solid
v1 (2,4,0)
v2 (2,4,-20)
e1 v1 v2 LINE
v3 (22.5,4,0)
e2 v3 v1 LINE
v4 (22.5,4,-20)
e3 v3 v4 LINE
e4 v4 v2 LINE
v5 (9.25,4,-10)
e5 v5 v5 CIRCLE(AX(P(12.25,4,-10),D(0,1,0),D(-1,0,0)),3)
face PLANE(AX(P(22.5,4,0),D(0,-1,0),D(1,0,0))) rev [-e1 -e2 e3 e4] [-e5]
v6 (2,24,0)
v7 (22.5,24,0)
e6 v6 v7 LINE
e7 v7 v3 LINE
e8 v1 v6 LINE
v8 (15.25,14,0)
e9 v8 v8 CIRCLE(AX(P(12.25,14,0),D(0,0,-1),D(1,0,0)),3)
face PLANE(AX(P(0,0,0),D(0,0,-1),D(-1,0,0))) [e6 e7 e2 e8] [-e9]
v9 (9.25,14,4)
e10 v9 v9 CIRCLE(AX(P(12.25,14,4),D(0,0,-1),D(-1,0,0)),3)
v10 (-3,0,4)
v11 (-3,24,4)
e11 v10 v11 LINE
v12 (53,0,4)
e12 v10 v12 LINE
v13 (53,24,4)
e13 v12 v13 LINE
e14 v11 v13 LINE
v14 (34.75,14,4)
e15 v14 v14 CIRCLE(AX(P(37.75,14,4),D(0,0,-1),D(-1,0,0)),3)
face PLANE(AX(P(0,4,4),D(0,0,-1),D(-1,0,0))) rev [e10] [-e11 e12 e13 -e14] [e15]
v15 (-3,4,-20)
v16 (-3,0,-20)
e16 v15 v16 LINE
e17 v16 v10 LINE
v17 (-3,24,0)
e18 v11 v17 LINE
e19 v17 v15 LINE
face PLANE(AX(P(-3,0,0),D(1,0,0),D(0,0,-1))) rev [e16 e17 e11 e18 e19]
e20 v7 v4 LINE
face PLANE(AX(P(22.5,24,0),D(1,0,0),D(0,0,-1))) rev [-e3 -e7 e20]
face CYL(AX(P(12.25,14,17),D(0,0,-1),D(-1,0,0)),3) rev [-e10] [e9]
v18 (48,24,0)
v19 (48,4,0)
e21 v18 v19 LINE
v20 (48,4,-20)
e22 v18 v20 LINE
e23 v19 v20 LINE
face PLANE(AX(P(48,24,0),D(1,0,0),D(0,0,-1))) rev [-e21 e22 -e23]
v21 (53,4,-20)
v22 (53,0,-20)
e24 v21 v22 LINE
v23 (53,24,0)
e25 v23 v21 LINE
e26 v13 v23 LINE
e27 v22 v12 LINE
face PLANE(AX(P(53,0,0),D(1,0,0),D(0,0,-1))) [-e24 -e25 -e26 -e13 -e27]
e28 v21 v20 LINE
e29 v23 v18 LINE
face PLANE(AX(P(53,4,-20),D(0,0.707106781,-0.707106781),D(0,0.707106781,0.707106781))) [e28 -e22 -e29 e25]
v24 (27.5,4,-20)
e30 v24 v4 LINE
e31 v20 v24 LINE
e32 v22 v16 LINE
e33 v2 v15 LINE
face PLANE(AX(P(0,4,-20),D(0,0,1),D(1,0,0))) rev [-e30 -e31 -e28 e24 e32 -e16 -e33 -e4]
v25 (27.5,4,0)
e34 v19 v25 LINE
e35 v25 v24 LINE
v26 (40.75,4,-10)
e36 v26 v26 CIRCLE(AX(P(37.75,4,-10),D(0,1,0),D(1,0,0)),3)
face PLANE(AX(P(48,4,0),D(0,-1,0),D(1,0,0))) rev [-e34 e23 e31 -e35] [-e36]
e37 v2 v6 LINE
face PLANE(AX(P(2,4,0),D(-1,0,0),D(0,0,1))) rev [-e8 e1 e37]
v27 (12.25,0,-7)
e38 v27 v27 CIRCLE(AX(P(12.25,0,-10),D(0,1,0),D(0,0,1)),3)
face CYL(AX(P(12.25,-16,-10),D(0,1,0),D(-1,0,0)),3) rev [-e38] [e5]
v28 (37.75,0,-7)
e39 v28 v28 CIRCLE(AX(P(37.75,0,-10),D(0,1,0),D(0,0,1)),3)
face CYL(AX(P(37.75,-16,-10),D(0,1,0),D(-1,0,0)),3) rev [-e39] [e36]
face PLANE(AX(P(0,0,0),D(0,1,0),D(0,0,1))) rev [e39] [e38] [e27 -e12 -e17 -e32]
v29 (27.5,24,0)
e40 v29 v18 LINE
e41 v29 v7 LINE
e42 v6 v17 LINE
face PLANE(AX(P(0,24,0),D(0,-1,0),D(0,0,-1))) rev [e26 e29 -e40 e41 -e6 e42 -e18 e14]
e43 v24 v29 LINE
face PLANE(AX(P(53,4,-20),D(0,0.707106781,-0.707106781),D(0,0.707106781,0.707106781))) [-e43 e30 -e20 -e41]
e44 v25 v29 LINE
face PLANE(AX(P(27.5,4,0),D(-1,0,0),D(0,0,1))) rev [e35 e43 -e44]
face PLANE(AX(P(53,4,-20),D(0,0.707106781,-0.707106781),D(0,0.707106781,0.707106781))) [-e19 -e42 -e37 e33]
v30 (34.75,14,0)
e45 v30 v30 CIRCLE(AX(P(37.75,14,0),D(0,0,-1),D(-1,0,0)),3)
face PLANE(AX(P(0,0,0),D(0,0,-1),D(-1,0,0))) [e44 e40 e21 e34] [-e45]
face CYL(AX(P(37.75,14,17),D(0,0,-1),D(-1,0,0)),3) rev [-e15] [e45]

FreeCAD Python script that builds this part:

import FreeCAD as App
import Part
import Sketcher

V = App.Vector
Q = App.Units.Quantity


def add_polygon(sketch, points):
    """Adds a closed chain of lines whose ends are joined by coincident constraints."""
    first, n = sketch.GeometryCount, len(points)
    for a, b in zip(points, points[1:] + points[:1]):
        sketch.addGeometry(Part.LineSegment(App.Vector(*a, 0), App.Vector(*b, 0)), False)
    for i in range(n):
        sketch.addConstraint(Sketcher.Constraint("Coincident", first + i, 2, first + (i + 1) % n, 1))

doc = App.newDocument("Part")
body = doc.addObject("PartDesign::Body", "Body")

# Sketch on XZ plane
sketch1 = doc.addObject("Sketcher::SketchObject", "Sketch")
body.addObject(sketch1)
sketch1.AttachmentSupport = (doc.XZ_Plane, [""])
sketch1.MapMode = "FlatFace"
add_polygon(sketch1, [(0, -20), (0, 4), (50, 4), (50, -20)])  # lines 0-3
sketch1.addGeometry(Part.Circle(V(37.5, -10, 0), V(0, 0, 1), 2.5), False)  # 4
sketch1.addGeometry(Part.Circle(V(12.5, -10, 0), V(0, 0, 1), 2.5), False)  # 5
sketch1.addConstraint(Sketcher.Constraint("Vertical", 0))
sketch1.addConstraint(Sketcher.Constraint("Horizontal", 1))
sketch1.addConstraint(Sketcher.Constraint("Vertical", 2))
sketch1.addConstraint(Sketcher.Constraint("Horizontal", 3))
sketch1.addConstraint(Sketcher.Constraint("Equal", 4, 5))
sketch1.addConstraint(Sketcher.Constraint("PointOnObject", 0, 2, -2))
sketch1.addConstraint(Sketcher.Constraint("Horizontal", 4, 3, 5, 3))
sketch1.addConstraint(Sketcher.Constraint("Diameter", 4, Q("5 mm")))
sketch1.addConstraint(Sketcher.Constraint("DistanceX", 1, 1, 1, 2, Q("50 mm")))
sketch1.addConstraint(Sketcher.Constraint("DistanceY", 0, 1, 0, 2, Q("24 mm")))
sketch1.addConstraint(Sketcher.Constraint("DistanceY", 4, 3, -1, 1, Q("10 mm")))
sketch1.addConstraint(Sketcher.Constraint("DistanceY", -1, 1, 0, 2, Q("4 mm")))
sketch1.addConstraint(Sketcher.Constraint("DistanceX", 5, 3, 4, 3, Q("25 mm")))
sketch1.addConstraint(Sketcher.Constraint("DistanceX", -1, 1, 4, 3, Q("37.5 mm")))
pad1 = doc.addObject("PartDesign::Pad", "Pad")
body.addObject(pad1)
pad1.Profile = sketch1
pad1.Length = 4
pad1.Reversed = True

# Sketch on XZ plane
sketch2 = doc.addObject("Sketcher::SketchObject", "Sketch001")
body.addObject(sketch2)
sketch2.AttachmentSupport = (doc.XZ_Plane, [""])
sketch2.MapMode = "FlatFace"
sketch2.AttachmentOffset = App.Placement(V(0, 0, -4), App.Rotation())
add_polygon(sketch2, [(0, 0), (0, 4), (50, 4), (50, 0)])  # lines 0-3
sketch2.addConstraint(Sketcher.Constraint("Vertical", 0))
sketch2.addConstraint(Sketcher.Constraint("Horizontal", 1))
sketch2.addConstraint(Sketcher.Constraint("Vertical", 2))
sketch2.addConstraint(Sketcher.Constraint("Horizontal", 3))
sketch2.addConstraint(Sketcher.Constraint("Coincident", 3, 2, -1, 1))
sketch2.addConstraint(Sketcher.Constraint("DistanceX", 1, 1, 1, 2, Q("50 mm")))
sketch2.addConstraint(Sketcher.Constraint("DistanceY", 0, 1, 0, 2, Q("4 mm")))
pad2 = doc.addObject("PartDesign::Pad", "Pad001")
body.addObject(pad2)
pad2.Profile = sketch2
pad2.Length = 20
pad2.Reversed = True

# Sketch on YZ plane
sketch3 = doc.addObject("Sketcher::SketchObject", "Sketch002")
body.addObject(sketch3)
sketch3.AttachmentSupport = (doc.YZ_Plane, [""])
sketch3.MapMode = "FlatFace"
add_polygon(sketch3, [(4, -20), (0, -20), (0, 4), (24, 4), (24, 0)])  # lines 0-4
sketch3.addConstraint(Sketcher.Constraint("Horizontal", 0))
sketch3.addConstraint(Sketcher.Constraint("Vertical", 1))
sketch3.addConstraint(Sketcher.Constraint("Horizontal", 2))
sketch3.addConstraint(Sketcher.Constraint("Vertical", 3))
sketch3.addConstraint(Sketcher.Constraint("PointOnObject", 0, 2, -2))
sketch3.addConstraint(Sketcher.Constraint("PointOnObject", 3, 2, -1))
sketch3.addConstraint(Sketcher.Constraint("Equal", 2, 1))
sketch3.addConstraint(Sketcher.Constraint("Equal", 0, 3))
sketch3.addConstraint(Sketcher.Constraint("DistanceX", 0, 2, 0, 1, Q("4 mm")))
sketch3.addConstraint(Sketcher.Constraint("DistanceX", 2, 1, 2, 2, Q("24 mm")))
pad3 = doc.addObject("PartDesign::Pad", "Pad002")
body.addObject(pad3)
pad3.Profile = sketch3
pad3.Type = "TwoLengths"
pad3.Length = 3
pad3.Length2 = 53
pad3.Reversed = True

# Sketch on XY plane
sketch4 = doc.addObject("Sketcher::SketchObject", "Sketch003")
body.addObject(sketch4)
sketch4.AttachmentSupport = (doc.XY_Plane, [""])
sketch4.MapMode = "FlatFace"
sketch4.AttachmentOffset = App.Placement(V(0, 0, -20), App.Rotation())
add_polygon(sketch4, [(48, 24), (48, 4), (27.5, 4), (27.5, 24)])  # lines 0-3
add_polygon(sketch4, [(22.5, 24), (22.5, 4), (2, 4), (2, 24)])  # lines 4-7
sketch4.addConstraint(Sketcher.Constraint("Vertical", 0))
sketch4.addConstraint(Sketcher.Constraint("Horizontal", 1))
sketch4.addConstraint(Sketcher.Constraint("Vertical", 2))
sketch4.addConstraint(Sketcher.Constraint("Horizontal", 3))
sketch4.addConstraint(Sketcher.Constraint("Vertical", 4))
sketch4.addConstraint(Sketcher.Constraint("Horizontal", 5))
sketch4.addConstraint(Sketcher.Constraint("Vertical", 6))
sketch4.addConstraint(Sketcher.Constraint("Horizontal", 7))
sketch4.addConstraint(Sketcher.Constraint("Horizontal", 1, 2, 4, 2))
sketch4.addConstraint(Sketcher.Constraint("Horizontal", 3, 2, 6, 2))
sketch4.addConstraint(Sketcher.Constraint("Equal", 3, 5))
sketch4.addConstraint(Sketcher.Constraint("DistanceY", 0, 2, 0, 1, Q("20 mm")))
sketch4.addConstraint(Sketcher.Constraint("DistanceX", 1, 2, 1, 1, Q("20.5 mm")))
sketch4.addConstraint(Sketcher.Constraint("DistanceX", -1, 1, 0, 2, Q("48 mm")))
sketch4.addConstraint(Sketcher.Constraint("DistanceY", -1, 1, 0, 2, Q("4 mm")))
sketch4.addConstraint(Sketcher.Constraint("DistanceX", -1, 1, 5, 2, Q("2 mm")))
pocket1 = doc.addObject("PartDesign::Pocket", "Pocket")
body.addObject(pocket1)
pocket1.Profile = sketch4
pocket1.Length = 20
pocket1.Reversed = True

# Sketch on XY plane
sketch5 = doc.addObject("Sketcher::SketchObject", "Sketch004")
body.addObject(sketch5)
sketch5.AttachmentSupport = (doc.XY_Plane, [""])
sketch5.MapMode = "FlatFace"
sketch5.addGeometry(Part.Circle(V(37.75, 14, 0), V(0, 0, 1), 3), False)
sketch5.addGeometry(Part.Circle(V(12.25, 14, 0), V(0, 0, 1), 3), False)
sketch5.addConstraint(Sketcher.Constraint("Equal", 0, 1))
sketch5.addConstraint(Sketcher.Constraint("Horizontal", 0, 3, 1, 3))
sketch5.addConstraint(Sketcher.Constraint("Diameter", 0, Q("6 mm")))
sketch5.addConstraint(Sketcher.Constraint("DistanceY", -1, 1, 0, 3, Q("14 mm")))
sketch5.addConstraint(Sketcher.Constraint("DistanceX", 1, 3, 0, 3, Q("25.5 mm")))
sketch5.addConstraint(Sketcher.Constraint("DistanceX", -1, 1, 0, 3, Q("37.75 mm")))
pocket2 = doc.addObject("PartDesign::Pocket", "Pocket001")
body.addObject(pocket2)
pocket2.Profile = sketch5
pocket2.Length = 17
pocket2.Reversed = True

# Sketch on XZ plane
sketch6 = doc.addObject("Sketcher::SketchObject", "Sketch005")
body.addObject(sketch6)
sketch6.AttachmentSupport = (doc.XZ_Plane, [""])
sketch6.MapMode = "FlatFace"
sketch6.AttachmentOffset = App.Placement(V(0, 0, -4), App.Rotation())
sketch6.addGeometry(Part.Circle(V(12.25, -10, 0), V(0, 0, 1), 3), False)
sketch6.addGeometry(Part.Circle(V(37.75, -10, 0), V(0, 0, 1), 3), False)
sketch6.addConstraint(Sketcher.Constraint("Equal", 0, 1))
sketch6.addConstraint(Sketcher.Constraint("Horizontal", 0, 3, 1, 3))
sketch6.addConstraint(Sketcher.Constraint("Diameter", 0, Q("6 mm")))
sketch6.addConstraint(Sketcher.Constraint("DistanceY", 0, 3, -1, 1, Q("10 mm")))
sketch6.addConstraint(Sketcher.Constraint("DistanceX", 0, 3, 1, 3, Q("25.5 mm")))
sketch6.addConstraint(Sketcher.Constraint("DistanceX", -1, 1, 0, 3, Q("12.25 mm")))
pocket3 = doc.addObject("PartDesign::Pocket", "Pocket002")
body.addObject(pocket3)
pocket3.Profile = sketch6
pocket3.Length = 20
pocket3.Reversed = True

doc.recompute()
